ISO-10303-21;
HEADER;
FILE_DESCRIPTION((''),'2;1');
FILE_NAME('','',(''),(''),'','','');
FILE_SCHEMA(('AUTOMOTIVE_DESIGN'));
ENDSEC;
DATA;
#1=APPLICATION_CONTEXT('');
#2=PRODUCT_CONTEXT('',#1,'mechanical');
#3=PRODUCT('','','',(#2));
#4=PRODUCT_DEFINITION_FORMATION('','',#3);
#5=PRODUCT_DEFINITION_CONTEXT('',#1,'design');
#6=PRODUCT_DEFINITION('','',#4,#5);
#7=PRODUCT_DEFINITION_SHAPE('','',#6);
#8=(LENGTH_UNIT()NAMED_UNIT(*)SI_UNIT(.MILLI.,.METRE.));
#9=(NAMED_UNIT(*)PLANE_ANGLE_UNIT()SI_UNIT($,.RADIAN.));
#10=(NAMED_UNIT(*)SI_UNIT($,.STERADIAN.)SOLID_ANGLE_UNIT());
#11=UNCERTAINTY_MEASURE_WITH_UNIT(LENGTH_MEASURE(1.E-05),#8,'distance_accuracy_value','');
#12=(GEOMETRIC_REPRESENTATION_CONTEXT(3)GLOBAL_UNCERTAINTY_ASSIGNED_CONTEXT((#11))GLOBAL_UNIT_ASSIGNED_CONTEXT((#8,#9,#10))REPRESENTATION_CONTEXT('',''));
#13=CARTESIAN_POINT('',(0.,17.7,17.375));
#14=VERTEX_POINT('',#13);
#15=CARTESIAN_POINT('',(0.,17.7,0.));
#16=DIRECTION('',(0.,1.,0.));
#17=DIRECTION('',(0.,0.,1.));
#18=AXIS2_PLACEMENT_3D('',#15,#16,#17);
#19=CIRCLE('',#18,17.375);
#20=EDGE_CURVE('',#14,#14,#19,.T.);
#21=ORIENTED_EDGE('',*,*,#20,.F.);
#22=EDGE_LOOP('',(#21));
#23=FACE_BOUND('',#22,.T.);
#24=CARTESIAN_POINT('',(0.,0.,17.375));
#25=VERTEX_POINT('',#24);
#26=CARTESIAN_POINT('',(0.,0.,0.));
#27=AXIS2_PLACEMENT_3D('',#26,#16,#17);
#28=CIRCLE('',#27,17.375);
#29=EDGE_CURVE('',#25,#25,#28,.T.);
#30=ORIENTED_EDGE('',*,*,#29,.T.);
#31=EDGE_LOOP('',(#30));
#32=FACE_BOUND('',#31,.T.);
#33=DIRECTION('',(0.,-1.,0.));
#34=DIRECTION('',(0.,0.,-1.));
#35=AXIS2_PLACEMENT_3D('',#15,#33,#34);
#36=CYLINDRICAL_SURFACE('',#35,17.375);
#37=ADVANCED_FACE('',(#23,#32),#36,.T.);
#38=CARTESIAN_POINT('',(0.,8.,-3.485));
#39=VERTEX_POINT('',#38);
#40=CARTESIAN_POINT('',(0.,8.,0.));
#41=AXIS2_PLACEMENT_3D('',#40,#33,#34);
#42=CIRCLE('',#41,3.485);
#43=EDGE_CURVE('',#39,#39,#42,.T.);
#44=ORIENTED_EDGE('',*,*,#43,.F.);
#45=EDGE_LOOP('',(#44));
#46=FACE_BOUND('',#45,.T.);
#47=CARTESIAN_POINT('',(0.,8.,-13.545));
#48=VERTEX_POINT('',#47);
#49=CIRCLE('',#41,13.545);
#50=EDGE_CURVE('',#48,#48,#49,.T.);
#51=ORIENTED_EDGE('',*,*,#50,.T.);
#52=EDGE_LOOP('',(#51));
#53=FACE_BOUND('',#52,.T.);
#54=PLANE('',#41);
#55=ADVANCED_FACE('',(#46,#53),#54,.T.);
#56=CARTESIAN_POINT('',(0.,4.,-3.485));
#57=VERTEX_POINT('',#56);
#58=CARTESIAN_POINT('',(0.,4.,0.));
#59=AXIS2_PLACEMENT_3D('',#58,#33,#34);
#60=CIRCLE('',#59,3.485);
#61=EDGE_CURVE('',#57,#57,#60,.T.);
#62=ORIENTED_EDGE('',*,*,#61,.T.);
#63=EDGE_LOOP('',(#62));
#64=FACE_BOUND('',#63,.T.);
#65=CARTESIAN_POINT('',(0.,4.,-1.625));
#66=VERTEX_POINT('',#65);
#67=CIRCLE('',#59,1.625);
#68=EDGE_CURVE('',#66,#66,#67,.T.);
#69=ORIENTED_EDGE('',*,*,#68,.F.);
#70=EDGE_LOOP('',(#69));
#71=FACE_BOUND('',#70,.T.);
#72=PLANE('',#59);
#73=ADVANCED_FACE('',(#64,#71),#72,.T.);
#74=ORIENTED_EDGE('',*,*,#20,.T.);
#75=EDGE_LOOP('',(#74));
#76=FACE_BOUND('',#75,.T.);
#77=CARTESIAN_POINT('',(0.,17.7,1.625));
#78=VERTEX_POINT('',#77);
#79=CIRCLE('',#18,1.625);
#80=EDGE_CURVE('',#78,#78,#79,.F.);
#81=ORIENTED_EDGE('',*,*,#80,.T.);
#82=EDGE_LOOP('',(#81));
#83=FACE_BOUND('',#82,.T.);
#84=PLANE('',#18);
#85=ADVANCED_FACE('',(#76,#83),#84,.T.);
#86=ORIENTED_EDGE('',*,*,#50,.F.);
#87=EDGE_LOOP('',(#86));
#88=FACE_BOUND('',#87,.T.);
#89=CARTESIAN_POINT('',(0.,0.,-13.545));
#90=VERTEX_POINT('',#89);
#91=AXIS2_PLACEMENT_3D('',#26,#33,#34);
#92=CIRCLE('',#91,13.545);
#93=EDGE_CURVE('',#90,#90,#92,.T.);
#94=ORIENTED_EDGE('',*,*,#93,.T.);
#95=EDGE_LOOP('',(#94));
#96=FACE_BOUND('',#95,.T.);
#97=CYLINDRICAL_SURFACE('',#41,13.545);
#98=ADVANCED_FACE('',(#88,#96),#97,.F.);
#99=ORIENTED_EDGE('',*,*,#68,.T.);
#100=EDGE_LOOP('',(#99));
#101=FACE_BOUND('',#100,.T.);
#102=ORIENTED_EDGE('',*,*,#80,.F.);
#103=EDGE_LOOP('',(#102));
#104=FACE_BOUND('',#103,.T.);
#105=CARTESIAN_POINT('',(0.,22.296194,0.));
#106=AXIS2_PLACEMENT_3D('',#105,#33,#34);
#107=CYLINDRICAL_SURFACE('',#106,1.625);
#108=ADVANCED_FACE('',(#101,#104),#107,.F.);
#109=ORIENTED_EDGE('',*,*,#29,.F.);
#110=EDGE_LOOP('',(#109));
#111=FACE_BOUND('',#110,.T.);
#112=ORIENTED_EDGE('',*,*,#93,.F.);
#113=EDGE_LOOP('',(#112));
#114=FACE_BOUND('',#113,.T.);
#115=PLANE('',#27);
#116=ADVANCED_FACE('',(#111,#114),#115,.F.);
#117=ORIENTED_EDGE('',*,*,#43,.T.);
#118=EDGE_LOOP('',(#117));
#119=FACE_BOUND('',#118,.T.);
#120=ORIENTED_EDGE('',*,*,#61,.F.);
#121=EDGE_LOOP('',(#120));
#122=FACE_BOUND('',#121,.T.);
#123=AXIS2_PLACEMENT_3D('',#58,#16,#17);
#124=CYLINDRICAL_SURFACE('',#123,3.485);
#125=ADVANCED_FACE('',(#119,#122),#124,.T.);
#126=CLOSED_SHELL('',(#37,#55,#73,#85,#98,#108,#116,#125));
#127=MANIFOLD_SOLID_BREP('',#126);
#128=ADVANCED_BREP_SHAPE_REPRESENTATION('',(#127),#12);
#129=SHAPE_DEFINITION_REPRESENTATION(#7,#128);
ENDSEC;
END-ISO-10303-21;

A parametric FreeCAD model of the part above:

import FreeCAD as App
import Part
import Sketcher
Q = App.Units.Quantity

doc = App.newDocument("Part")
body = doc.addObject("PartDesign::Body", "Body")

# Sketch on XZ plane
sketch1 = body.newObject("Sketcher::SketchObject", "Sketch")
sketch1.AttachmentSupport = (doc.getObject("XZ_Plane"), [""])
sketch1.MapMode = "FlatFace"
sketch1.addGeometry(Part.Circle(App.Vector(0, 0, 0), App.Vector(0, 0, 1), 17.375), False)
sketch1.addConstraint(Sketcher.Constraint("Coincident", 0, 3, -1, 1))
sketch1.addConstraint(Sketcher.Constraint("Diameter", 0, Q("34.75 mm")))
pad1 = body.newObject("PartDesign::Pad", "Pad")
pad1.Profile = sketch1
pad1.Length = 17.7
pad1.Reversed = True

# Sketch on XZ plane
sketch2 = body.newObject("Sketcher::SketchObject", "Sketch001")
sketch2.AttachmentSupport = (doc.getObject("XZ_Plane"), [""])
sketch2.MapMode = "FlatFace"
sketch2.addGeometry(Part.Circle(App.Vector(0, 0, 0), App.Vector(0, 0, 1), 13.545), False)
sketch2.addConstraint(Sketcher.Constraint("Coincident", 0, 3, -1, 1))
sketch2.addConstraint(Sketcher.Constraint("Diameter", 0, Q("27.09 mm")))
pocket1 = body.newObject("PartDesign::Pocket", "Pocket")
pocket1.Profile = sketch2
pocket1.Length = 8

# Sketch on XZ plane
sketch3 = body.newObject("Sketcher::SketchObject", "Sketch002")
sketch3.AttachmentSupport = (doc.getObject("XZ_Plane"), [""])
sketch3.MapMode = "FlatFace"
sketch3.AttachmentOffset = App.Placement(App.Vector(0, 0, -8), App.Rotation())
sketch3.addGeometry(Part.Circle(App.Vector(0, 0, 0), App.Vector(0, 0, 1), 3.485), False)
sketch3.addConstraint(Sketcher.Constraint("Coincident", 0, 3, -1, 1))
sketch3.addConstraint(Sketcher.Constraint("Diameter", 0, Q("6.97 mm")))
pad2 = body.newObject("PartDesign::Pad", "Pad001")
pad2.Profile = sketch3
pad2.Length = 4

# Sketch on XZ plane
sketch4 = body.newObject("Sketcher::SketchObject", "Sketch003")
sketch4.AttachmentSupport = (doc.getObject("XZ_Plane"), [""])
sketch4.MapMode = "FlatFace"
sketch4.AttachmentOffset = App.Placement(App.Vector(0, 0, -4), App.Rotation())
sketch4.addGeometry(Part.Circle(App.Vector(0, 0, 0), App.Vector(0, 0, 1), 1.625), False)
sketch4.addConstraint(Sketcher.Constraint("Coincident", 0, 3, -1, 1))
sketch4.addConstraint(Sketcher.Constraint("Diameter", 0, Q("3.25 mm")))
pocket2 = body.newObject("PartDesign::Pocket", "Pocket001")
pocket2.Profile = sketch4
pocket2.Length = 13.7

doc.recompute()
